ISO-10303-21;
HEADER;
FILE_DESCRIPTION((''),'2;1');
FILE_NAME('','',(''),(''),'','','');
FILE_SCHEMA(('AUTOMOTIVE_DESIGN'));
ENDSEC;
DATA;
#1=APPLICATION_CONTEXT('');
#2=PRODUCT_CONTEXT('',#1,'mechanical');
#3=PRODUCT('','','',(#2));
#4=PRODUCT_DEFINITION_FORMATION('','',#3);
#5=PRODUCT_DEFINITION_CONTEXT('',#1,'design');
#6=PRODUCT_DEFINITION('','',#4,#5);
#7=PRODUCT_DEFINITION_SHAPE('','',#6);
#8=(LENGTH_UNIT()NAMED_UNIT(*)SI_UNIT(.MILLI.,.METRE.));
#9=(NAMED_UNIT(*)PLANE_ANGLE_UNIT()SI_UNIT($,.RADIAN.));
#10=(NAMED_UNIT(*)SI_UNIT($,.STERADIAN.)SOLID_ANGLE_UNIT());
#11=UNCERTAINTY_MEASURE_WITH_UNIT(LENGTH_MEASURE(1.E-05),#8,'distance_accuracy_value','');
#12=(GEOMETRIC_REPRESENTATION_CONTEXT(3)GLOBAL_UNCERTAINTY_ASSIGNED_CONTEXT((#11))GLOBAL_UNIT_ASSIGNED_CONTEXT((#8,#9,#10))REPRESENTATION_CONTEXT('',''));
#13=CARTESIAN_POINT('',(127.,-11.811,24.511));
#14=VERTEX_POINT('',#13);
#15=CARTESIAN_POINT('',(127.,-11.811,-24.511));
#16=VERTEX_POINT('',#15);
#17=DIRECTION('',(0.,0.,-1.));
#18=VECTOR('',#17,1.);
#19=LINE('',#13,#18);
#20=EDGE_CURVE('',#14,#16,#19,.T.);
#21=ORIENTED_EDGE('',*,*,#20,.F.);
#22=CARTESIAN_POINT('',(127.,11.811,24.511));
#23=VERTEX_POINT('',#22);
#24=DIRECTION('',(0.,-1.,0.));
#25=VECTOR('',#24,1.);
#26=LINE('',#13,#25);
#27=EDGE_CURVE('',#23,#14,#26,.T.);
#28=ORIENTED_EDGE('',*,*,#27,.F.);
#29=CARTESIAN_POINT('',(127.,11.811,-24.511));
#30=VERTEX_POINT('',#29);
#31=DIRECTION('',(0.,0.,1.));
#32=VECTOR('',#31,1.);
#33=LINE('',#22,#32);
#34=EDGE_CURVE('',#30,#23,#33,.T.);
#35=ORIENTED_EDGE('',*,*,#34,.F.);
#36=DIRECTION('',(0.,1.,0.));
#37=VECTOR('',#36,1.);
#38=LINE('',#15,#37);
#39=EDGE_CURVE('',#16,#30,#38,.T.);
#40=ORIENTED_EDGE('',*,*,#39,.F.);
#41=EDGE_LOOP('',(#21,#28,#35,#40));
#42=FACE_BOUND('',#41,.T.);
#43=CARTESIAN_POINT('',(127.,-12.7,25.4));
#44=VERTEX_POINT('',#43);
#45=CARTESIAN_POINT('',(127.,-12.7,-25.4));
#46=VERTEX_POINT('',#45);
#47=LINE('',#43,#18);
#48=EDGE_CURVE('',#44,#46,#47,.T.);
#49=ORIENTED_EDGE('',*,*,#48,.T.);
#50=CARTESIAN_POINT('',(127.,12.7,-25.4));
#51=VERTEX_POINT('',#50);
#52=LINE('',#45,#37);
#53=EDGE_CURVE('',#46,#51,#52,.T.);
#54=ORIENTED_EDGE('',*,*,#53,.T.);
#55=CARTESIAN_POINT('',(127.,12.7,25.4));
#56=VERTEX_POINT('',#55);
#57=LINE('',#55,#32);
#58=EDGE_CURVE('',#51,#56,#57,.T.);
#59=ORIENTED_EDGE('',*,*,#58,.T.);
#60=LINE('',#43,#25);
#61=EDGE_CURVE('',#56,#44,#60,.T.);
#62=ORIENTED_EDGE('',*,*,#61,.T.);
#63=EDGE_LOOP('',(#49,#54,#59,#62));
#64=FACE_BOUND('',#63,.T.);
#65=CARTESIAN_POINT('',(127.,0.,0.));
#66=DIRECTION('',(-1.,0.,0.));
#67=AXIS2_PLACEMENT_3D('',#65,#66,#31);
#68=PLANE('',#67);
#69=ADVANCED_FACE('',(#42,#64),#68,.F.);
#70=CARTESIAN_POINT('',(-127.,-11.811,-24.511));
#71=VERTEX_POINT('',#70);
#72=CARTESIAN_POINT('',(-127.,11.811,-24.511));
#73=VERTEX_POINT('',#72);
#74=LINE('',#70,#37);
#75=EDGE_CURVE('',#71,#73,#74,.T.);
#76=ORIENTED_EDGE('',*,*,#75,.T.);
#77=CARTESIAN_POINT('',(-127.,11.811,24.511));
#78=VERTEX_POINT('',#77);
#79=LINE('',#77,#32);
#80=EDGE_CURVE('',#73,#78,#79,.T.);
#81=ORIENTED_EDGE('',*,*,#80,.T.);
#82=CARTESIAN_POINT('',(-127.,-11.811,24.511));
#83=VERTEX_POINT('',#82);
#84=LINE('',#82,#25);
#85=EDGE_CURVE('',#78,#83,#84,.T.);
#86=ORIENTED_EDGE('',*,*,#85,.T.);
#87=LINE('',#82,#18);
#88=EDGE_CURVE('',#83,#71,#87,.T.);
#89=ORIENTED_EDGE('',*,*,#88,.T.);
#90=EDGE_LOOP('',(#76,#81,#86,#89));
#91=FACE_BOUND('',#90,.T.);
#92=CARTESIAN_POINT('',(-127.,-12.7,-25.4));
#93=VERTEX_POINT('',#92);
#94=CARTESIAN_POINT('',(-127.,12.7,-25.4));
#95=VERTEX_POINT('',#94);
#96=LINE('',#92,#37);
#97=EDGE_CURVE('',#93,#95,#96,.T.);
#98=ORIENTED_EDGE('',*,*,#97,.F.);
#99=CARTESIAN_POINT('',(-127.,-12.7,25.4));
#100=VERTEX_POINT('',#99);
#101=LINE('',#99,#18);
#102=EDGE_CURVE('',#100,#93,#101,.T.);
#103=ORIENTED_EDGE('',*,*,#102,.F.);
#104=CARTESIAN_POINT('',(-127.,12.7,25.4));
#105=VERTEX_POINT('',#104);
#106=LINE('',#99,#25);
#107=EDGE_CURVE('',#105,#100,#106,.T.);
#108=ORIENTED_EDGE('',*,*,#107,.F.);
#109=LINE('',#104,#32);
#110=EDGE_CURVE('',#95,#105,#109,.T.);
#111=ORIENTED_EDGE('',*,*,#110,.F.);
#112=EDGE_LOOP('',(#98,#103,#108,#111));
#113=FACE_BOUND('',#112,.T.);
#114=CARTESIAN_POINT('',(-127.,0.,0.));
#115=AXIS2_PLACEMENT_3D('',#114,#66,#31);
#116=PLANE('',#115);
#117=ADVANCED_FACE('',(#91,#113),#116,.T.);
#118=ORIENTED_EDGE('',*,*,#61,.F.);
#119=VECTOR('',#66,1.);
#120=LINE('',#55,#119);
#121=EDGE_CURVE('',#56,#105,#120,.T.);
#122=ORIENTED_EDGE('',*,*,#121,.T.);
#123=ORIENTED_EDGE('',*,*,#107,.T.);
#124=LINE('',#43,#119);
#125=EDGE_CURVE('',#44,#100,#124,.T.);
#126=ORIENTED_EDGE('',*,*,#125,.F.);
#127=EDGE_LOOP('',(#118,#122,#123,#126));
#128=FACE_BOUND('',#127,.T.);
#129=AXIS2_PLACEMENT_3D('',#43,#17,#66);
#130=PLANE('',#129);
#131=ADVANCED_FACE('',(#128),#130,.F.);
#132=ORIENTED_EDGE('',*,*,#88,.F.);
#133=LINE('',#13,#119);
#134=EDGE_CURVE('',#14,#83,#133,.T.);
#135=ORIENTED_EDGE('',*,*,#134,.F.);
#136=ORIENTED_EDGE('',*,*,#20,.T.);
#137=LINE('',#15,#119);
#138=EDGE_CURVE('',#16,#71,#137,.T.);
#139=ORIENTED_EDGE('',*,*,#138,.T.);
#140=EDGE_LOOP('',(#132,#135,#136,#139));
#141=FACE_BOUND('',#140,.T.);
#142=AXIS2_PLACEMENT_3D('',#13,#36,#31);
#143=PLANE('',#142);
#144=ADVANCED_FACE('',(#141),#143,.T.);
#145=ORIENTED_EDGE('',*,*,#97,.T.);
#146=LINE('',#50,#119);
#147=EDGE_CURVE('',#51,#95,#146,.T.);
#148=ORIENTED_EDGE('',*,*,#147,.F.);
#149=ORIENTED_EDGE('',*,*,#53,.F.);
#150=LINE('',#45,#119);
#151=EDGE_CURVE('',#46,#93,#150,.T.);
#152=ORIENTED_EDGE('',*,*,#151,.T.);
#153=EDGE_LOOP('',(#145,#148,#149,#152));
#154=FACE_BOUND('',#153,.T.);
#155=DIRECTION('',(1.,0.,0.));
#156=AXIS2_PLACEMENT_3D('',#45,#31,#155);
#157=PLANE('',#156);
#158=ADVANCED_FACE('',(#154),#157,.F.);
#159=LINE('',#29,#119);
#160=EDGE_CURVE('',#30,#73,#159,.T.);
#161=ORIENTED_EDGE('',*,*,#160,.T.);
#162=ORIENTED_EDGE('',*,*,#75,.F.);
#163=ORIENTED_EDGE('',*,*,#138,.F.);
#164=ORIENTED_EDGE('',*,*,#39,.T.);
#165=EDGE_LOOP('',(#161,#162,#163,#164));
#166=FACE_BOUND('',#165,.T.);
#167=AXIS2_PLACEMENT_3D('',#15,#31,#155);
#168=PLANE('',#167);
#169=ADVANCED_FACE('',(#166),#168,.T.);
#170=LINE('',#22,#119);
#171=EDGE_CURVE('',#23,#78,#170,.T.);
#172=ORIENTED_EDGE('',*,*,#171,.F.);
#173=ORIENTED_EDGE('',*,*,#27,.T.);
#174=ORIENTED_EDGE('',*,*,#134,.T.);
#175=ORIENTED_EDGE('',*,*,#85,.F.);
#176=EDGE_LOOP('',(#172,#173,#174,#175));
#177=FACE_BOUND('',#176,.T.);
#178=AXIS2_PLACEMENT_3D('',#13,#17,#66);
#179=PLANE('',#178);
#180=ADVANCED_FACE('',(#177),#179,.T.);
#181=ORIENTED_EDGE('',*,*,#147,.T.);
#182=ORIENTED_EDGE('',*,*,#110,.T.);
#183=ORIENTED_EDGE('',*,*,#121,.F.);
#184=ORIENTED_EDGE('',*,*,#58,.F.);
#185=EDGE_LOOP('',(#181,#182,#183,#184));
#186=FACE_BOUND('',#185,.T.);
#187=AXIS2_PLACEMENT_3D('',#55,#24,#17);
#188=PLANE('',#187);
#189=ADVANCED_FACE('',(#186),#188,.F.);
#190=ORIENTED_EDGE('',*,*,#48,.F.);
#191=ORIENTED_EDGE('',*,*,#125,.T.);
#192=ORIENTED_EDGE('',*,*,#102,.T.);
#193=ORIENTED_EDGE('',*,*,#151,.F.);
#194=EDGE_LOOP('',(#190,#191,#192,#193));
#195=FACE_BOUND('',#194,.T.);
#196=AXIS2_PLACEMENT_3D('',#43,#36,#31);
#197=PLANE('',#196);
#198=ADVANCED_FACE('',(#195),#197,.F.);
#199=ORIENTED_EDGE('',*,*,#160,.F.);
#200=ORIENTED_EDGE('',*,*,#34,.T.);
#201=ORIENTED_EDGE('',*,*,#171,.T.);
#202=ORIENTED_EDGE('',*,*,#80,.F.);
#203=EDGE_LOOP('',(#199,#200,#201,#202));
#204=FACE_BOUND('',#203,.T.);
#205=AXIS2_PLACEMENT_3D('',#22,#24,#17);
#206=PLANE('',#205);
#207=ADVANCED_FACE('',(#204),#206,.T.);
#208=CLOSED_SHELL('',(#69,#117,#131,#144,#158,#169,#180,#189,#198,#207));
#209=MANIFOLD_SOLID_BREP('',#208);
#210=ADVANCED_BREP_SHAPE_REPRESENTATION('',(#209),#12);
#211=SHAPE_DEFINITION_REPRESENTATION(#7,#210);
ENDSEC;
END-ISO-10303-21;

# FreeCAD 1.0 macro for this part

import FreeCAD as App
import Part
import Sketcher
Q = App.Units.Quantity


def add_polygon(sketch, points):
    """Adds a closed chain of lines whose ends are joined by coincident constraints."""
    first, n = sketch.GeometryCount, len(points)
    for a, b in zip(points, points[1:] + points[:1]):
        sketch.addGeometry(Part.LineSegment(App.Vector(*a, 0), App.Vector(*b, 0)), False)
    for i in range(n):
        sketch.addConstraint(Sketcher.Constraint("Coincident", first + i, 2, first + (i + 1) % n, 1))

doc = App.newDocument("Part")
body = doc.addObject("PartDesign::Body", "Body")

# Sketch on YZ plane
sketch1 = body.newObject("Sketcher::SketchObject", "Sketch")
sketch1.AttachmentSupport = (doc.getObject("YZ_Plane"), [""])
sketch1.MapMode = "FlatFace"
add_polygon(sketch1, [(12.7, 25.4), (-12.7, 25.4), (-12.7, -25.4), (12.7, -25.4)])  # lines 0-3
add_polygon(sketch1, [(-11.811, -24.511), (-11.811, 24.511), (11.811, 24.511), (11.811, -24.511)])  # lines 4-7
sketch1.addConstraint([
    Sketcher.Constraint("Horizontal", 0),
    Sketcher.Constraint("Vertical", 1),
    Sketcher.Constraint("Horizontal", 2),
    Sketcher.Constraint("Vertical", 3),
    Sketcher.Constraint("Vertical", 4),
    Sketcher.Constraint("Horizontal", 5),
    Sketcher.Constraint("Vertical", 6),
    Sketcher.Constraint("Horizontal", 7),
    Sketcher.Constraint("Symmetric", 0, 2, 2, 2, -1, 1),
    Sketcher.Constraint("Symmetric", 4, 2, 6, 2, -1, 1),
    Sketcher.Constraint("DistanceX", 0, 2, 0, 1, Q("1 in")),
    Sketcher.Constraint("DistanceY", 1, 2, 1, 1, Q("2 in")),
    Sketcher.Constraint("DistanceX", 5, 1, 5, 2, Q("0.93 in")),
    Sketcher.Constraint("DistanceY", 4, 1, 4, 2, Q("1.93 in")),
])
pad1 = body.newObject("PartDesign::Pad", "Pad")
pad1.Profile = sketch1
pad1.Length = Q("10 in")
pad1.Midplane = True

doc.recompute()
